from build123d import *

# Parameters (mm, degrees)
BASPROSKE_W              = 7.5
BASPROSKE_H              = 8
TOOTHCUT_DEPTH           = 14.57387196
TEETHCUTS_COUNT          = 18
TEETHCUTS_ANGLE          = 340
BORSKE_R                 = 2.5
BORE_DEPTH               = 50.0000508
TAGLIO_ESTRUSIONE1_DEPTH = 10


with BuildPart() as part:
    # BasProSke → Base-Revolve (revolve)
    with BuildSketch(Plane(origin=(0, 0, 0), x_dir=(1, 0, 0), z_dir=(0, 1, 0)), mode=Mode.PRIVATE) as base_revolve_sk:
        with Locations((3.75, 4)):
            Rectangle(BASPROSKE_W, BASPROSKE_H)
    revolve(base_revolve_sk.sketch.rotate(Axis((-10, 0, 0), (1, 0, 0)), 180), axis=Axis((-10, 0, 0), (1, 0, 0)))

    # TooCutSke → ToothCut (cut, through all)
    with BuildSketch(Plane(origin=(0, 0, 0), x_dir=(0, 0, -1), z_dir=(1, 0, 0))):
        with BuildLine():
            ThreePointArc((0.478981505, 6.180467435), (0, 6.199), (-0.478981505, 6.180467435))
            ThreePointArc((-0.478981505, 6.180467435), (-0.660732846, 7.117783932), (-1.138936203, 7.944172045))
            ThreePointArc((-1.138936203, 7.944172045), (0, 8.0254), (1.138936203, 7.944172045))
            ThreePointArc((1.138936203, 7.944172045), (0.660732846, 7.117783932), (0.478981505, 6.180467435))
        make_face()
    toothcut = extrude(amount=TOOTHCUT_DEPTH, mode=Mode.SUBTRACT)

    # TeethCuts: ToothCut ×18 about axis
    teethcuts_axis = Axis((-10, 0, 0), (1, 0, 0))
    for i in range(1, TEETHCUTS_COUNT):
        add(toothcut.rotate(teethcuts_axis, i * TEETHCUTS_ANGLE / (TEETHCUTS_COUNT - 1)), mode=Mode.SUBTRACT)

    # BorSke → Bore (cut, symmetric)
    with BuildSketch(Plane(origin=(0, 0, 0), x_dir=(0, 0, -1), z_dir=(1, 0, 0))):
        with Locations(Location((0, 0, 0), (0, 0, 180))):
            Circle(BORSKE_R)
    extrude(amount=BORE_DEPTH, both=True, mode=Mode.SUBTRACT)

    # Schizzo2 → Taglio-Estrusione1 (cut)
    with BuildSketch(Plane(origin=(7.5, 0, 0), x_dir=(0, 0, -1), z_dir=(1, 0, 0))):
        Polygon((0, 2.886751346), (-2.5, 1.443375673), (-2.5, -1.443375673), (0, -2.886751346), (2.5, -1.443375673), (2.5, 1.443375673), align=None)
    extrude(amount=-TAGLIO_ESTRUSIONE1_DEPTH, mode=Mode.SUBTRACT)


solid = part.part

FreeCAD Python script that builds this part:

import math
import FreeCAD as App
import Part
import Sketcher
from FreeCAD import Vector
Q = App.Units.Quantity

doc = App.newDocument("Part")
body = doc.addObject("PartDesign::Body", "Body")

# Sketch on XZ plane
sketch1 = body.newObject("Sketcher::SketchObject", "Sketch")
sketch1.AttachmentSupport = (doc.getObject("XZ_Plane"), [""])
sketch1.MapMode = "FlatFace"
sketch1.addGeometry(Part.LineSegment(Vector(0, -8, 0), Vector(0, 0, 0)), False)
sketch1.addGeometry(Part.LineSegment(Vector(0, 0, 0), Vector(8, 0, 0)), False)
sketch1.addGeometry(Part.LineSegment(Vector(8, 0, 0), Vector(8, -8, 0)), False)
sketch1.addGeometry(Part.LineSegment(Vector(8, -8, 0), Vector(0, -8, 0)), False)
sketch1.addConstraint(Sketcher.Constraint("Coincident", 0, 2, 1, 1))
sketch1.addConstraint(Sketcher.Constraint("Coincident", 1, 2, 2, 1))
sketch1.addConstraint(Sketcher.Constraint("Coincident", 2, 2, 3, 1))
sketch1.addConstraint(Sketcher.Constraint("Coincident", 3, 2, 0, 1))
sketch1.addConstraint(Sketcher.Constraint("Vertical", 0))
sketch1.addConstraint(Sketcher.Constraint("Horizontal", 1))
sketch1.addConstraint(Sketcher.Constraint("Vertical", 2))
sketch1.addConstraint(Sketcher.Constraint("Horizontal", 3))
sketch1.addConstraint(Sketcher.Constraint("Coincident", 0, 2, -1, 1))
sketch1.addConstraint(Sketcher.Constraint("DistanceY", 0, 1, 0, 2, Q("8 mm")))
sketch1.addConstraint(Sketcher.Constraint("DistanceX", 1, 1, 1, 2, Q("7.5 mm")))
revolution = body.newObject("PartDesign::Revolution", "Revolution")
revolution.Profile = sketch1
revolution.ReferenceAxis = (sketch1, ["H_Axis"])
revolution.Angle = 360

# Sketch on YZ plane
sketch2 = body.newObject("Sketcher::SketchObject", "Sketch001")
sketch2.AttachmentSupport = (doc.getObject("YZ_Plane"), [""])
sketch2.MapMode = "FlatFace"
sketch2.addGeometry(Part.ArcOfCircle(Part.Circle(Vector(0, 0, 0), Vector(0, 0, 1), 6.2), math.radians(-4.43), math.radians(4.43)), False)
sketch2.addGeometry(Part.ArcOfCircle(Part.Circle(Vector(6.1, -3.4, 0), Vector(0, 0, 1), 2.9), math.radians(50), math.radians(89)), False)
sketch2.addGeometry(Part.ArcOfCircle(Part.Circle(Vector(0, 0, 0), Vector(0, 0, 1), 8), math.radians(-8.16), math.radians(8.16)), False)
sketch2.addGeometry(Part.ArcOfCircle(Part.Circle(Vector(6.1, 3.4, 0), Vector(0, 0, 1), 2.9), math.radians(-89), math.radians(-50)), False)
sketch2.addConstraint(Sketcher.Constraint("Coincident", 0, 1, 1, 2))
sketch2.addConstraint(Sketcher.Constraint("Coincident", 1, 1, 2, 1))
sketch2.addConstraint(Sketcher.Constraint("Coincident", 2, 2, 3, 2))
sketch2.addConstraint(Sketcher.Constraint("Coincident", 3, 1, 0, 2))
sketch2.addConstraint(Sketcher.Constraint("Coincident", 0, 3, -1, 1))
sketch2.addConstraint(Sketcher.Constraint("Coincident", 2, 3, -1, 1))
sketch2.addConstraint(Sketcher.Constraint("Equal", 1, 3))
sketch2.addConstraint(Sketcher.Constraint("Symmetric", 1, 3, 3, 3, -1))
sketch2.addConstraint(Sketcher.Constraint("Radius", 1, Q("2.88 mm")))
sketch2.addConstraint(Sketcher.Constraint("Radius", 0, Q("6.199 mm")))
sketch2.addConstraint(Sketcher.Constraint("Radius", 2, Q("8.0254 mm")))
sketch2.addConstraint(Sketcher.Constraint("DistanceY", 1, 3, 0, 1, Q("2.8791 mm")))
sketch2.addConstraint(Sketcher.Constraint("DistanceX", 1, 3, 1, 1, Q("1.8357 mm")))
pocket1 = body.newObject("PartDesign::Pocket", "Pocket")
pocket1.Profile = sketch2
pocket1.Type = "ThroughAll"
pocket1.Reversed = True
doc.recompute()

polarpattern = body.newObject("PartDesign::PolarPattern", "PolarPattern")
polarpattern.Originals = [pocket1]
polarpattern.Axis = (doc.getObject("X_Axis"), [""])
polarpattern.Angle = 360
polarpattern.Occurrences = 18
body.Tip = polarpattern

# Sketch on YZ plane
sketch3 = body.newObject("Sketcher::SketchObject", "Sketch002")
sketch3.AttachmentSupport = (doc.getObject("YZ_Plane"), [""])
sketch3.MapMode = "FlatFace"
sketch3.addGeometry(Part.Circle(Vector(0, 0, 0), Vector(0, 0, 1), 2.5), False)
sketch3.addConstraint(Sketcher.Constraint("Coincident", 0, 3, -1, 1))
sketch3.addConstraint(Sketcher.Constraint("Diameter", 0, Q("5 mm")))
pocket2 = body.newObject("PartDesign::Pocket", "Pocket001")
pocket2.Profile = sketch3
pocket2.Length = 100.000102
pocket2.Midplane = True

# Sketch on YZ plane
sketch4 = body.newObject("Sketcher::SketchObject", "Sketch003")
sketch4.AttachmentSupport = (doc.getObject("YZ_Plane"), [""])
sketch4.MapMode = "FlatFace"
sketch4.AttachmentOffset = App.Placement(Vector(0, 0, 7.5), App.Rotation())
sketch4.addGeometry(Part.LineSegment(Vector(2.9, 0, 0), Vector(1.4, 2.5, 0)), False)
sketch4.addGeometry(Part.LineSegment(Vector(1.4, 2.5, 0), Vector(-1.4, 2.5, 0)), False)
sketch4.addGeometry(Part.LineSegment(Vector(-1.4, 2.5, 0), Vector(-2.9, 0, 0)), False)
sketch4.addGeometry(Part.LineSegment(Vector(-2.9, 0, 0), Vector(-1.4, -2.5, 0)), False)
sketch4.addGeometry(Part.LineSegment(Vector(-1.4, -2.5, 0), Vector(1.4, -2.5, 0)), False)
sketch4.addGeometry(Part.LineSegment(Vector(1.4, -2.5, 0), Vector(2.9, 0, 0)), False)
sketch4.addConstraint(Sketcher.Constraint("Coincident", 0, 2, 1, 1))
sketch4.addConstraint(Sketcher.Constraint("Coincident", 1, 2, 2, 1))
sketch4.addConstraint(Sketcher.Constraint("Coincident", 2, 2, 3, 1))
sketch4.addConstraint(Sketcher.Constraint("Coincident", 3, 2, 4, 1))
sketch4.addConstraint(Sketcher.Constraint("Coincident", 4, 2, 5, 1))
sketch4.addConstraint(Sketcher.Constraint("Coincident", 5, 2, 0, 1))
sketch4.addConstraint(Sketcher.Constraint("Horizontal", 1))
sketch4.addConstraint(Sketcher.Constraint("Horizontal", 4))
sketch4.addConstraint(Sketcher.Constraint("Symmetric", 0, 2, 3, 2, -1, 1))
sketch4.addConstraint(Sketcher.Constraint("Symmetric", 2, 2, 5, 2, -1, 1))
sketch4.addConstraint(Sketcher.Constraint("PointOnObject", 2, 2, -1))
sketch4.addConstraint(Sketcher.Constraint("Parallel", 2, 5))
sketch4.addConstraint(Sketcher.Constraint("Vertical", 1, 2, 3, 2))
sketch4.addConstraint(Sketcher.Constraint("Angle", 0, Q("120 deg")))
sketch4.addConstraint(Sketcher.Constraint("DistanceY", 3, 2, 1, 2, Q("5 mm")))
sketch4.addConstraint(Sketcher.Constraint("DistanceX", 1, 2, 1, 1, Q("2.886751 mm")))
pocket3 = body.newObject("PartDesign::Pocket", "Pocket002")
pocket3.Profile = sketch4
pocket3.Length = 10

doc.recompute()
